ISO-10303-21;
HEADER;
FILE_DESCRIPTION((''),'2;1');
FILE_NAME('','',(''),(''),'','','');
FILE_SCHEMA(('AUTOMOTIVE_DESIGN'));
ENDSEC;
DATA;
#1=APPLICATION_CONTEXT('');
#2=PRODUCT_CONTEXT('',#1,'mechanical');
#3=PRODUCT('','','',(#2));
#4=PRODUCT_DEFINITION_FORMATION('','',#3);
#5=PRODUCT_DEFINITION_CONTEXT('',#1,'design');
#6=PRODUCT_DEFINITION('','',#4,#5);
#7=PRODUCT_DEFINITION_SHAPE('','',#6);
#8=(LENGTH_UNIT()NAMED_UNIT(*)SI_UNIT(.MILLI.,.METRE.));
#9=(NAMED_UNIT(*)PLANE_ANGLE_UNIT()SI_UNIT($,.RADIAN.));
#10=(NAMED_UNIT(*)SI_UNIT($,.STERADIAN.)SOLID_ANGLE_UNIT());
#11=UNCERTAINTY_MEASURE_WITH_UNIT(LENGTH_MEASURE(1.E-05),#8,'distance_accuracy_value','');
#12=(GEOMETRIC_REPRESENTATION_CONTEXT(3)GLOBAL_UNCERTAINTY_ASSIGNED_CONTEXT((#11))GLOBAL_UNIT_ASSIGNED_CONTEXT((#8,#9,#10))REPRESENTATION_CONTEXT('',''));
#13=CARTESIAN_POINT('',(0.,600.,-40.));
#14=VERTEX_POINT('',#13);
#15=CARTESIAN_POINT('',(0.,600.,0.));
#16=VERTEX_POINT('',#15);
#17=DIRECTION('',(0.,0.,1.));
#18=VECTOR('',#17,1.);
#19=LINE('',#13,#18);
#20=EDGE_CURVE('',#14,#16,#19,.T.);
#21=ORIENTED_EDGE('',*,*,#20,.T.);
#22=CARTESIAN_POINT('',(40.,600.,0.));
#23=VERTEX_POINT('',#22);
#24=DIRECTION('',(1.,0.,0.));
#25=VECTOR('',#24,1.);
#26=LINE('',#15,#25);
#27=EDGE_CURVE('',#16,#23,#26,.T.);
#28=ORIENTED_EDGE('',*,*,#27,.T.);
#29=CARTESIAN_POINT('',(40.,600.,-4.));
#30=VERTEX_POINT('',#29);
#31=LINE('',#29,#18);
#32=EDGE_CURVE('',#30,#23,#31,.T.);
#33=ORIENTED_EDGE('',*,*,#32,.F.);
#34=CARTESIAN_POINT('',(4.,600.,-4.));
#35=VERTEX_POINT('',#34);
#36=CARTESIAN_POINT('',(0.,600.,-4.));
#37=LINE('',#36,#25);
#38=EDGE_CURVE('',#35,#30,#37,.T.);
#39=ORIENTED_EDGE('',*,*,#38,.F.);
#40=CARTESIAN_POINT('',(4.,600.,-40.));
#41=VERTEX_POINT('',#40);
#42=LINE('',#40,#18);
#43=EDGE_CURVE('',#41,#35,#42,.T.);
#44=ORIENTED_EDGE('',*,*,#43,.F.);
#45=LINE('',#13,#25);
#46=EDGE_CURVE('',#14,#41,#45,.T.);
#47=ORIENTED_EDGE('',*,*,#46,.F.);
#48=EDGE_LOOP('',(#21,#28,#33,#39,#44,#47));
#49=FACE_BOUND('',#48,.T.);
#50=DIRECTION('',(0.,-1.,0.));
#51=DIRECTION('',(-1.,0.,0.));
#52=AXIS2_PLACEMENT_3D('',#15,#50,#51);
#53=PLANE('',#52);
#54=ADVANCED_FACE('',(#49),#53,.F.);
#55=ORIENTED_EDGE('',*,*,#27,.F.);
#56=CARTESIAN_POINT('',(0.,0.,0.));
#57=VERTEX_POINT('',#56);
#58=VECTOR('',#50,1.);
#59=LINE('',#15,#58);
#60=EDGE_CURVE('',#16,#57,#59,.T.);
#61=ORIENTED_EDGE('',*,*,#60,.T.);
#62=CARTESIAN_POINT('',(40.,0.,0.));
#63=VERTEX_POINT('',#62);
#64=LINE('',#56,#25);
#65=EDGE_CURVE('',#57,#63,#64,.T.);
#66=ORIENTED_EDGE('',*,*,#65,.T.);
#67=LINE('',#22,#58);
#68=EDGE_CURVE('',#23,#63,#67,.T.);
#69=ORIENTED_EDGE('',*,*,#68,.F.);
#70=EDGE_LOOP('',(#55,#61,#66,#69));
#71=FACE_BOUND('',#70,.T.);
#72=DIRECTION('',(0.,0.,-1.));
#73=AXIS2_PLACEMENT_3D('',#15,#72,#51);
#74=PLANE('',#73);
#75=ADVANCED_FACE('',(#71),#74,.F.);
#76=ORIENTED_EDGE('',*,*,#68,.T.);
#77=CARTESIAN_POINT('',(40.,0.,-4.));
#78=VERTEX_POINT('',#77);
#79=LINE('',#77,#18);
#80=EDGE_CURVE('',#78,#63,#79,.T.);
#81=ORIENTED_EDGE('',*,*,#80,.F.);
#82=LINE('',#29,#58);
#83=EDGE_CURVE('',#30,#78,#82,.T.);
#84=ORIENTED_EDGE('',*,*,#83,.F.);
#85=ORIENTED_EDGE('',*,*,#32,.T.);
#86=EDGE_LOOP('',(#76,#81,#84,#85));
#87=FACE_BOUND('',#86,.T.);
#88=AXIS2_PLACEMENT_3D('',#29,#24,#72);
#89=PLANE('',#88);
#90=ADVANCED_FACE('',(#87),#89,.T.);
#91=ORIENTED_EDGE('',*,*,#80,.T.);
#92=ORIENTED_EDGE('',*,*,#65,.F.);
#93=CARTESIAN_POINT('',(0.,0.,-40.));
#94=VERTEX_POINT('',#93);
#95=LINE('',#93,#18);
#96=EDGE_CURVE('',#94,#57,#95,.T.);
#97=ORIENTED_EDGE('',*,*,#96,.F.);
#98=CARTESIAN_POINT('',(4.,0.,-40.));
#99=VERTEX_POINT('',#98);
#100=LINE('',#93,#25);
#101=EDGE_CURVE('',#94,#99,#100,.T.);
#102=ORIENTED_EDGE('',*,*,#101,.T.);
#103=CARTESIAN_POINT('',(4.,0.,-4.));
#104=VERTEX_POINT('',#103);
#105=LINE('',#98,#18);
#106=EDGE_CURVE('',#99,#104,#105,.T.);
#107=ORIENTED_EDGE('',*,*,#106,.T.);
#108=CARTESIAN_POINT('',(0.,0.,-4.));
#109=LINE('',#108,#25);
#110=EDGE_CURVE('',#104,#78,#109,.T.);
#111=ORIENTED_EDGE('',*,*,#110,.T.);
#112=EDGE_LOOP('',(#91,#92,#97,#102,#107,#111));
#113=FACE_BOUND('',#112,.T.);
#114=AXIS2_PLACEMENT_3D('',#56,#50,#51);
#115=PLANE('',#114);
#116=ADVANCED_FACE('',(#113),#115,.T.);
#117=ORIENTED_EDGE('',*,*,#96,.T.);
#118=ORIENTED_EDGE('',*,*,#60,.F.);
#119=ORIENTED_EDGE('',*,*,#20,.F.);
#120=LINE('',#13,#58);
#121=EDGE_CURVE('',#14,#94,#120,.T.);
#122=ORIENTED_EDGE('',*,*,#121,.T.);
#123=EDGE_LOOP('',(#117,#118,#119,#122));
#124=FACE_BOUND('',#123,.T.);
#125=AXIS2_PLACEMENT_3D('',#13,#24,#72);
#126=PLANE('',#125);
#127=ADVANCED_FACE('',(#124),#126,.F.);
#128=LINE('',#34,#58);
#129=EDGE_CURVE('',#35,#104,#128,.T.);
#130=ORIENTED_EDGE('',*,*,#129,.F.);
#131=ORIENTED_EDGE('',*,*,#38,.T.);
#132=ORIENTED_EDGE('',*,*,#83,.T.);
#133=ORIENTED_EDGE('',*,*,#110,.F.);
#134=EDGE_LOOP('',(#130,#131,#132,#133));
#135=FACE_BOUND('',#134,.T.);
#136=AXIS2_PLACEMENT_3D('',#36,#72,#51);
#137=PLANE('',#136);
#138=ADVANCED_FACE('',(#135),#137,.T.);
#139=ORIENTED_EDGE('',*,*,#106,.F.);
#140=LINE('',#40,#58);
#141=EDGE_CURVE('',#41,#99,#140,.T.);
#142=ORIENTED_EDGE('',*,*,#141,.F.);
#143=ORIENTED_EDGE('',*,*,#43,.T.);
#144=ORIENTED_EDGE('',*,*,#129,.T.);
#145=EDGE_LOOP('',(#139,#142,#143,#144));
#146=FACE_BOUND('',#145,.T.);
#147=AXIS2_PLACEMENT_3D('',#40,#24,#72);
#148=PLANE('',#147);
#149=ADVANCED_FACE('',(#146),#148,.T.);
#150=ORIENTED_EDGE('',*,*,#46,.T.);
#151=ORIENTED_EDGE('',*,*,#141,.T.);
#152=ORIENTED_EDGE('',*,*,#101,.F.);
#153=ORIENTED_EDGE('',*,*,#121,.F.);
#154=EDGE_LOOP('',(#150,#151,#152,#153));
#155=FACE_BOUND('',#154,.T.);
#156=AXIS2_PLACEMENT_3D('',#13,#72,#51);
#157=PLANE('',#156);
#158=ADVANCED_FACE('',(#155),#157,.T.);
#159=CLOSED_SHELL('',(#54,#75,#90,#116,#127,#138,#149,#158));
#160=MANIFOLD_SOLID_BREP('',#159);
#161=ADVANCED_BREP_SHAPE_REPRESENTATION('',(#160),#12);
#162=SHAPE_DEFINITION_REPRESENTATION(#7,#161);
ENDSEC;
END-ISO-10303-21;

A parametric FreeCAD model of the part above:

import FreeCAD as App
import Part
import Sketcher
from FreeCAD import Vector
Q = App.Units.Quantity


def add_polygon(sketch, points):
    """Adds a closed chain of lines whose ends are joined by coincident constraints."""
    first, n = sketch.GeometryCount, len(points)
    for a, b in zip(points, points[1:] + points[:1]):
        sketch.addGeometry(Part.LineSegment(App.Vector(*a, 0), App.Vector(*b, 0)), False)
    for i in range(n):
        sketch.addConstraint(Sketcher.Constraint("Coincident", first + i, 2, first + (i + 1) % n, 1))

doc = App.newDocument("Part")
body = doc.addObject("PartDesign::Body", "Body")

sketch1 = body.newObject("Sketcher::SketchObject", "Sketch")
sketch1.AttachmentSupport = (doc.getObject("XZ_Plane"), [""])
sketch1.MapMode = "FlatFace"
add_polygon(sketch1, [(0, -40), (0, 0), (40, 0), (40, -4), (4, -4), (4, -40)])
sketch1.addConstraint([
    Sketcher.Constraint("Vertical", 0),
    Sketcher.Constraint("Horizontal", 1),
    Sketcher.Constraint("Vertical", 2),
    Sketcher.Constraint("Horizontal", 3),
    Sketcher.Constraint("Vertical", 4),
    Sketcher.Constraint("Horizontal", 5),
    Sketcher.Constraint("Coincident", 0, 2, -1, 1),
    Sketcher.Constraint("Equal", 1, 0),
    Sketcher.Constraint("Equal", 5, 2),
    Sketcher.Constraint("DistanceX", 1, 1, 1, 2, Q("40 mm")),
    Sketcher.Constraint("DistanceX", 3, 2, 3, 1, Q("36 mm")),
])
pad1 = body.newObject("PartDesign::Pad", "Pad")
pad1.Profile = sketch1
pad1.Length = 600
pad1.Reversed = True

doc.recompute()
